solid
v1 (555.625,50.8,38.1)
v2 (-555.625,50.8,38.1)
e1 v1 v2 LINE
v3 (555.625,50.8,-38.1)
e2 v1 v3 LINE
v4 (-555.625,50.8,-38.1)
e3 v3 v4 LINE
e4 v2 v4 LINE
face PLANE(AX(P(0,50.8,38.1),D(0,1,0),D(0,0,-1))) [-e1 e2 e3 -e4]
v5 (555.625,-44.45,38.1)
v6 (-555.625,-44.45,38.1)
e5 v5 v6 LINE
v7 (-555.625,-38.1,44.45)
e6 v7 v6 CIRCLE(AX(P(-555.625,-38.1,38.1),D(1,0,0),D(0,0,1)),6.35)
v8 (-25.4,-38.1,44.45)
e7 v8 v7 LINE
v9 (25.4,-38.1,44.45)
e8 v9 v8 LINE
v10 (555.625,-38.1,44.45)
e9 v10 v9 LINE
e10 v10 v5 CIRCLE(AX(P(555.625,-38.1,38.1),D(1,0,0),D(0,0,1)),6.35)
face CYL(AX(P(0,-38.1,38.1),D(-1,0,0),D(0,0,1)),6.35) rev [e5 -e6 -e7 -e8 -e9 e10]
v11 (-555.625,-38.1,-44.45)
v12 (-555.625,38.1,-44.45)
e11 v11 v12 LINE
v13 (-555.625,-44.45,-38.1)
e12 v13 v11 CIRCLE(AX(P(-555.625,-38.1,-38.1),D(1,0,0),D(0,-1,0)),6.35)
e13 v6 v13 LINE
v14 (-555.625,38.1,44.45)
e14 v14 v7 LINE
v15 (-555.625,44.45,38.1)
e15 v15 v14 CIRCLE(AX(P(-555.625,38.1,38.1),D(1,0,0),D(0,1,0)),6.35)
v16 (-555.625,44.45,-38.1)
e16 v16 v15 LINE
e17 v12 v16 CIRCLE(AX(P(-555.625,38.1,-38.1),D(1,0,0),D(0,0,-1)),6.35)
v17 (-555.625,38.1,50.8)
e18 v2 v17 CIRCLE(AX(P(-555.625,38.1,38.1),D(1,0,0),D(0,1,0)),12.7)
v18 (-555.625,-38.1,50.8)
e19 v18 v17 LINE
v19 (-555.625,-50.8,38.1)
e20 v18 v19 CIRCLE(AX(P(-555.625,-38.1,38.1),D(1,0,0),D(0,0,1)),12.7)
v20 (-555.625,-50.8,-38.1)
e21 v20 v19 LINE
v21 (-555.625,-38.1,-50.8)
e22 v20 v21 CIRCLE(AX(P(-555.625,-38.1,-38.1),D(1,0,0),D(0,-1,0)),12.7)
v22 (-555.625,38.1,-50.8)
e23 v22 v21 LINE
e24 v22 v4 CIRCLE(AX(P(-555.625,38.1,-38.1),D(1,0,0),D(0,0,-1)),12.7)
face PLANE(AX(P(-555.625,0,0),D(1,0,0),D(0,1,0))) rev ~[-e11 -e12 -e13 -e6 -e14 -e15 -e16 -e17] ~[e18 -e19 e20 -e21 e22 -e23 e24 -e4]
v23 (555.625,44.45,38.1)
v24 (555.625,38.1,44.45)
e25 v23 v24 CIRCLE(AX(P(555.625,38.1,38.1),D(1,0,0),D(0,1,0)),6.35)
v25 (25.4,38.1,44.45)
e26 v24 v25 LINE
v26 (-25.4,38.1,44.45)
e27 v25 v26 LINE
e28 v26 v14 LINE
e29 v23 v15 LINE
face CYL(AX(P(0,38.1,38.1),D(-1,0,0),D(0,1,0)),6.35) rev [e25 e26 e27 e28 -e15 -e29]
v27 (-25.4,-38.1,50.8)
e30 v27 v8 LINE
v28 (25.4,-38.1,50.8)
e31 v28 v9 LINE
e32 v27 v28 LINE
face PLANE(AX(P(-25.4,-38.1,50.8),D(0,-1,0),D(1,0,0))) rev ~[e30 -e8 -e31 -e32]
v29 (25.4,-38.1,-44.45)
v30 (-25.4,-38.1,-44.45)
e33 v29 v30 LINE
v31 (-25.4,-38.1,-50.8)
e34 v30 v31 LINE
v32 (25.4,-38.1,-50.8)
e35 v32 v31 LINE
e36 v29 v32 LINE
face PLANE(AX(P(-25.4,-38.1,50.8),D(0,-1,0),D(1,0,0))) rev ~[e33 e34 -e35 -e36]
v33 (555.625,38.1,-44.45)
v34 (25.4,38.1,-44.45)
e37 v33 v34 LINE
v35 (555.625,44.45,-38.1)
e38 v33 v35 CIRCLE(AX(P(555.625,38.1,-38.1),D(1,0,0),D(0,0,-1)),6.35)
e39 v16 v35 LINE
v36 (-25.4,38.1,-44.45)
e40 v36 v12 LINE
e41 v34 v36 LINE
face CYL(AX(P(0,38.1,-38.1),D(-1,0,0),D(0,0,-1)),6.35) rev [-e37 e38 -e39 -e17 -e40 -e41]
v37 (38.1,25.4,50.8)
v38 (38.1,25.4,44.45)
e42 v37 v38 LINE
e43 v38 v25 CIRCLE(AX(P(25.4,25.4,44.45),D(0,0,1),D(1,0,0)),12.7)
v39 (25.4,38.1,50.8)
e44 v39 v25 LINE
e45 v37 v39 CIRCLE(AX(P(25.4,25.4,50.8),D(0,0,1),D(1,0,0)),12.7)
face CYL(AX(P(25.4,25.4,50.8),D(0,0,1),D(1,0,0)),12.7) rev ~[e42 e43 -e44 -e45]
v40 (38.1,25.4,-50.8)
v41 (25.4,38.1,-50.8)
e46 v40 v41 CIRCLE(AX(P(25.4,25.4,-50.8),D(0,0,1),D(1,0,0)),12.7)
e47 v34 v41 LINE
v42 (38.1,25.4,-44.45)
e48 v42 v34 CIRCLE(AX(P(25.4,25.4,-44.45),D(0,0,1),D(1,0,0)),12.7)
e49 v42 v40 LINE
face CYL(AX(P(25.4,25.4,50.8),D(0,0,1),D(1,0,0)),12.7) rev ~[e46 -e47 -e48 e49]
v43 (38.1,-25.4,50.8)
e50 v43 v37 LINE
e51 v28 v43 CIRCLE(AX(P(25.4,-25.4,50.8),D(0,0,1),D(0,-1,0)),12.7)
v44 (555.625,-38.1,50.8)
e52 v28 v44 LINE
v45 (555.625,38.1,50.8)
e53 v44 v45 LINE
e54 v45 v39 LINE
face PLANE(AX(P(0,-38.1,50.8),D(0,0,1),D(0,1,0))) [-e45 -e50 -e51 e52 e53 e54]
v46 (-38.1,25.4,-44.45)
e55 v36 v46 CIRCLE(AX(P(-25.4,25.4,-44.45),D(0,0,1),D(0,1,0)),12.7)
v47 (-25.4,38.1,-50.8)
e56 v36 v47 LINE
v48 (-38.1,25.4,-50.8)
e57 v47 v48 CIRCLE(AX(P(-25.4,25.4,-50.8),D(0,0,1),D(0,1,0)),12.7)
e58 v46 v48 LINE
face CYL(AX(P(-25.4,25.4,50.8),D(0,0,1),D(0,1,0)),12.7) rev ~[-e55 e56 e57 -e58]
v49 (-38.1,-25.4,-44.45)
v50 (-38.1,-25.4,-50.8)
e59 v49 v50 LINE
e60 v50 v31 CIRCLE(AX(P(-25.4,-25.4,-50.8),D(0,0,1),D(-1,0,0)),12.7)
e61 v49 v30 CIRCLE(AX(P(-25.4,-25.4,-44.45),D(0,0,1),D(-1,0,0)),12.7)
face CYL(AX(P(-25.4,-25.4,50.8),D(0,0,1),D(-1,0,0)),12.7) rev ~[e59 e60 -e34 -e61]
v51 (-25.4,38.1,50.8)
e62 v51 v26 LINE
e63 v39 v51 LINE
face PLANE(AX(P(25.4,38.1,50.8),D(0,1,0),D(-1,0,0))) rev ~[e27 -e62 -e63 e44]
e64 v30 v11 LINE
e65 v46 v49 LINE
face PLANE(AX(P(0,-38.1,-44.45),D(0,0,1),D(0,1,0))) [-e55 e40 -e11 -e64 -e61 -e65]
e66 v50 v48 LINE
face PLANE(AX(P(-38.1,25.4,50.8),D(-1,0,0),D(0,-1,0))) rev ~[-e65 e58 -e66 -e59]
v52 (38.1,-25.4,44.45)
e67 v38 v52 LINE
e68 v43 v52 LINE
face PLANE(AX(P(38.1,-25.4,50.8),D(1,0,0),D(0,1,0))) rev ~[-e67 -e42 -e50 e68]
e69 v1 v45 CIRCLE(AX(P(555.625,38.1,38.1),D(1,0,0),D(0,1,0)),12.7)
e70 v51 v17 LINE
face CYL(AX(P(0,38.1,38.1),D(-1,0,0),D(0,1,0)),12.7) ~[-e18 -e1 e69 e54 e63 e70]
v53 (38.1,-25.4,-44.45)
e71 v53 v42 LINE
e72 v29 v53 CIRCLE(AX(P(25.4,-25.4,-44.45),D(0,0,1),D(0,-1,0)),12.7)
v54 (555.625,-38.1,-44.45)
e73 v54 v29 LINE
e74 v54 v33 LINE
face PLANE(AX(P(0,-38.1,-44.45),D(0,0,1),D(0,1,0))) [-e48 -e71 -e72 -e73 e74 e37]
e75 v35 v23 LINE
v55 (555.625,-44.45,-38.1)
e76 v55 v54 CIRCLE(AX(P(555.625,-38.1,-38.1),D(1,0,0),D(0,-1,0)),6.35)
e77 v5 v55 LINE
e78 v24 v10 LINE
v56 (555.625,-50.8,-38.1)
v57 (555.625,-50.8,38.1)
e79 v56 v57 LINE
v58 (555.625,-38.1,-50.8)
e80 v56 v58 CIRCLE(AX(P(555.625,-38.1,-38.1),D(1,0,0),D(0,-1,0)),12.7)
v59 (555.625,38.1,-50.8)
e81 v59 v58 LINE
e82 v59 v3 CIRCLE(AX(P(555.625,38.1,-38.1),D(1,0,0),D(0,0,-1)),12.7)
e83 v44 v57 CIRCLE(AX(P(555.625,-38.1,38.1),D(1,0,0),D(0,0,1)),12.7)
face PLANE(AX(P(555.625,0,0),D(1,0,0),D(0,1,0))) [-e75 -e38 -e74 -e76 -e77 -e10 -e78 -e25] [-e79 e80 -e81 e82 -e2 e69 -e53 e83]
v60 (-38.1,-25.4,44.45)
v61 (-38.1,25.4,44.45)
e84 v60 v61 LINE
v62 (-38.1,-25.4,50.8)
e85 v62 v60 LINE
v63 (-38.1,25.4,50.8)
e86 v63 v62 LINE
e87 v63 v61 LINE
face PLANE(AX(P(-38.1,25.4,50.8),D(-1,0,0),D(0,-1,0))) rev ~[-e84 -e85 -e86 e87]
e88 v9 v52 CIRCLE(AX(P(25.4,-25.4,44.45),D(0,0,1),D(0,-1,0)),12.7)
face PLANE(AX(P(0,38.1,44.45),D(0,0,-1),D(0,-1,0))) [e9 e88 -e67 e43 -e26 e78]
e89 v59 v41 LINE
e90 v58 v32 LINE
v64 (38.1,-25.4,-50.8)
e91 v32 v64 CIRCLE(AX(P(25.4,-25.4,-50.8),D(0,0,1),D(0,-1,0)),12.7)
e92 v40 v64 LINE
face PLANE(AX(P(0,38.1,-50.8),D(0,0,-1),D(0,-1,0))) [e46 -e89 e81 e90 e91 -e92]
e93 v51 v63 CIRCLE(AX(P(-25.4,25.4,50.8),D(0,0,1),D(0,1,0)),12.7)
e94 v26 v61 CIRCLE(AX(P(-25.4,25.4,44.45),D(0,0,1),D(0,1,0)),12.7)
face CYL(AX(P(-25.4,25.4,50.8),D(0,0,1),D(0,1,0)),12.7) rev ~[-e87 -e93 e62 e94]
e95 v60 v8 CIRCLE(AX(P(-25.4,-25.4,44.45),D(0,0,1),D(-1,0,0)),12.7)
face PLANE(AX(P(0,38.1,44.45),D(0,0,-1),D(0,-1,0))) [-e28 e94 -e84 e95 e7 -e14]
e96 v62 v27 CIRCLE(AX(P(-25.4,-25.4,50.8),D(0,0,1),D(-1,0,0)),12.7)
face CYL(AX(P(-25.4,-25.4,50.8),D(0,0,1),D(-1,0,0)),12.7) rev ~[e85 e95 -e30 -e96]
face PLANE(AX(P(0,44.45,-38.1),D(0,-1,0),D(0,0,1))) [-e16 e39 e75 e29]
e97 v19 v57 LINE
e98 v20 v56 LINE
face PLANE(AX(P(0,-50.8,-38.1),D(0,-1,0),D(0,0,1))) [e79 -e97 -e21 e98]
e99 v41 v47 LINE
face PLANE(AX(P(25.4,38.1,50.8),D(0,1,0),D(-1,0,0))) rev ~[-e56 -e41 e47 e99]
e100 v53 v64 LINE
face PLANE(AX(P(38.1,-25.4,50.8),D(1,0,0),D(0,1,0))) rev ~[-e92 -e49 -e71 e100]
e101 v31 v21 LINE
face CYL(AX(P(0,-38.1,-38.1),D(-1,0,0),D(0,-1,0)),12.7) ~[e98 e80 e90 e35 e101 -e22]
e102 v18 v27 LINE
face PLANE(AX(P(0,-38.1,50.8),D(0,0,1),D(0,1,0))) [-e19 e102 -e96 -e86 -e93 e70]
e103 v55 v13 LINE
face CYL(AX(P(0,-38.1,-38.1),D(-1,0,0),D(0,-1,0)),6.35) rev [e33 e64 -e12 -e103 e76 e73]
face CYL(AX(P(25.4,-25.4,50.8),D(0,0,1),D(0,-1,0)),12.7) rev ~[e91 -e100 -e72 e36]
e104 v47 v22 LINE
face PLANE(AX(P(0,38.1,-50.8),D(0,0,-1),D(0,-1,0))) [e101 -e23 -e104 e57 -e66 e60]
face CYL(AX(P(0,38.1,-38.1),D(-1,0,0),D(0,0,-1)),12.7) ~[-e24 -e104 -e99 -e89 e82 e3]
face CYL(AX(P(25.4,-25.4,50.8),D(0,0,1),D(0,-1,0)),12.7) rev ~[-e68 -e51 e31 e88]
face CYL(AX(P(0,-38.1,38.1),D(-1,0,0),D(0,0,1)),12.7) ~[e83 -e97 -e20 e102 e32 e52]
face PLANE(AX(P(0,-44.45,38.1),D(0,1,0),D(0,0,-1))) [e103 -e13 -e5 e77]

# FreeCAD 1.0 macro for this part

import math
import FreeCAD as App
import Part
import Sketcher
from FreeCAD import Vector
Q = App.Units.Quantity

doc = App.newDocument("Part")
body = doc.addObject("PartDesign::Body", "Body")

# Sketch on YZ plane
sketch1 = body.newObject("Sketcher::SketchObject", "Sketch")
sketch1.AttachmentSupport = (doc.getObject("YZ_Plane"), [""])
sketch1.MapMode = "FlatFace"
sketch1.addGeometry([
    Part.LineSegment(Vector(38, 51, 0), Vector(-38, 51, 0)),  # 0
    Part.ArcOfCircle(Part.Circle(Vector(-38, 38, 0), Vector(0, 0, 1), 13), math.radians(90), math.radians(180)),  # 1
    Part.LineSegment(Vector(-51, 38, 0), Vector(-51, -38, 0)),  # 2
    Part.ArcOfCircle(Part.Circle(Vector(-38, -38, 0), Vector(0, 0, 1), 13), math.radians(180), math.radians(270)),  # 3
    Part.LineSegment(Vector(-38, -51, 0), Vector(38, -51, 0)),  # 4
    Part.ArcOfCircle(Part.Circle(Vector(38, -38, 0), Vector(0, 0, 1), 13), math.radians(-90), math.radians(0)),  # 5
    Part.LineSegment(Vector(51, -38, 0), Vector(51, 38, 0)),  # 6
    Part.ArcOfCircle(Part.Circle(Vector(38, 38, 0), Vector(0, 0, 1), 13), math.radians(0), math.radians(90)),  # 7
    Part.LineSegment(Vector(44, 38, 0), Vector(44, -38, 0)),  # 8
    Part.ArcOfCircle(Part.Circle(Vector(38, -38, 0), Vector(0, 0, 1), 6), math.radians(-90), math.radians(0)),  # 9
    Part.LineSegment(Vector(38, -44, 0), Vector(-38, -44, 0)),  # 10
    Part.ArcOfCircle(Part.Circle(Vector(-38, -38, 0), Vector(0, 0, 1), 6), math.radians(180), math.radians(270)),  # 11
    Part.LineSegment(Vector(-44, -38, 0), Vector(-44, 38, 0)),  # 12
    Part.ArcOfCircle(Part.Circle(Vector(-38, 38, 0), Vector(0, 0, 1), 6), math.radians(90), math.radians(180)),  # 13
    Part.LineSegment(Vector(-38, 44, 0), Vector(38, 44, 0)),  # 14
    Part.ArcOfCircle(Part.Circle(Vector(38, 38, 0), Vector(0, 0, 1), 6), math.radians(0), math.radians(90)),  # 15
], False)
sketch1.addConstraint([
    Sketcher.Constraint("Tangent", 0, 2, 1, 1),
    Sketcher.Constraint("Tangent", 1, 2, 2, 1),
    Sketcher.Constraint("Tangent", 2, 2, 3, 1),
    Sketcher.Constraint("Tangent", 3, 2, 4, 1),
    Sketcher.Constraint("Tangent", 4, 2, 5, 1),
    Sketcher.Constraint("Tangent", 5, 2, 6, 1),
    Sketcher.Constraint("Tangent", 6, 2, 7, 1),
    Sketcher.Constraint("Tangent", 7, 2, 0, 1),
    Sketcher.Constraint("Tangent", 8, 2, 9, 2),
    Sketcher.Constraint("Tangent", 9, 1, 10, 1),
    Sketcher.Constraint("Tangent", 10, 2, 11, 2),
    Sketcher.Constraint("Tangent", 11, 1, 12, 1),
    Sketcher.Constraint("Tangent", 12, 2, 13, 2),
    Sketcher.Constraint("Tangent", 13, 1, 14, 1),
    Sketcher.Constraint("Tangent", 14, 2, 15, 2),
    Sketcher.Constraint("Tangent", 15, 1, 8, 1),
    Sketcher.Constraint("Horizontal", 0),
    Sketcher.Constraint("Vertical", 2),
    Sketcher.Constraint("Horizontal", 4),
    Sketcher.Constraint("Vertical", 6),
    Sketcher.Constraint("Vertical", 8),
    Sketcher.Constraint("Horizontal", 10),
    Sketcher.Constraint("Vertical", 12),
    Sketcher.Constraint("Horizontal", 14),
    Sketcher.Constraint("Coincident", 9, 3, 5, 3),
    Sketcher.Constraint("Coincident", 11, 3, 3, 3),
    Sketcher.Constraint("Coincident", 13, 3, 1, 3),
    Sketcher.Constraint("Equal", 1, 3),
    Sketcher.Constraint("Equal", 3, 5),
    Sketcher.Constraint("Equal", 5, 7),
    Sketcher.Constraint("Equal", 13, 15),
    Sketcher.Constraint("Symmetric", 1, 3, 5, 3, -1, 1),
    Sketcher.Constraint("Equal", 14, 2),
    Sketcher.Constraint("Radius", 1, Q("0.5 in")),
    Sketcher.Constraint("Radius", 9, Q("0.25 in")),
    Sketcher.Constraint("DistanceX", 0, 2, 0, 1, Q("3 in")),
])
pad1 = body.newObject("PartDesign::Pad", "Pad")
pad1.Profile = sketch1
pad1.Length = Q("43.75 in")
pad1.Midplane = True

# Sketch on XY plane
sketch2 = body.newObject("Sketcher::SketchObject", "Sketch001")
sketch2.AttachmentSupport = (doc.getObject("XY_Plane"), [""])
sketch2.MapMode = "FlatFace"
sketch2.AttachmentOffset = App.Placement(Vector(0, 0, 2 * 25.4), App.Rotation())
sketch2.addGeometry([
    Part.ArcOfCircle(Part.Circle(Vector(-25, -25, 0), Vector(0, 0, 1), 13), math.radians(180), math.radians(270)),  # 0
    Part.LineSegment(Vector(-25, -38, 0), Vector(25, -38, 0)),  # 1
    Part.ArcOfCircle(Part.Circle(Vector(25, -25, 0), Vector(0, 0, 1), 13), math.radians(-90), math.radians(0)),  # 2
    Part.LineSegment(Vector(38, -25, 0), Vector(38, 25, 0)),  # 3
    Part.ArcOfCircle(Part.Circle(Vector(25, 25, 0), Vector(0, 0, 1), 13), math.radians(0), math.radians(90)),  # 4
    Part.LineSegment(Vector(25, 38, 0), Vector(-25, 38, 0)),  # 5
    Part.ArcOfCircle(Part.Circle(Vector(-25, 25, 0), Vector(0, 0, 1), 13), math.radians(90), math.radians(180)),  # 6
    Part.LineSegment(Vector(-38, 25, 0), Vector(-38, -25, 0)),  # 7
], False)
sketch2.addConstraint([
    Sketcher.Constraint("Tangent", 0, 2, 1, 1),
    Sketcher.Constraint("Tangent", 1, 2, 2, 1),
    Sketcher.Constraint("Tangent", 2, 2, 3, 1),
    Sketcher.Constraint("Tangent", 3, 2, 4, 1),
    Sketcher.Constraint("Tangent", 4, 2, 5, 1),
    Sketcher.Constraint("Tangent", 5, 2, 6, 1),
    Sketcher.Constraint("Tangent", 6, 2, 7, 1),
    Sketcher.Constraint("Tangent", 7, 2, 0, 1),
    Sketcher.Constraint("Horizontal", 1),
    Sketcher.Constraint("Vertical", 3),
    Sketcher.Constraint("Horizontal", 5),
    Sketcher.Constraint("Vertical", 7),
    Sketcher.Constraint("Equal", 0, 2),
    Sketcher.Constraint("Equal", 2, 4),
    Sketcher.Constraint("Equal", 4, 6),
    Sketcher.Constraint("Symmetric", 0, 3, 4, 3, -1, 1),
    Sketcher.Constraint("Equal", 5, 3),
    Sketcher.Constraint("Radius", 0, Q("0.5 in")),
    Sketcher.Constraint("DistanceX", 1, 1, 1, 2, Q("2 in")),
])
pocket1 = body.newObject("PartDesign::Pocket", "Pocket")
pocket1.Profile = sketch2
pocket1.Length = Q("7 in")

doc.recompute()
